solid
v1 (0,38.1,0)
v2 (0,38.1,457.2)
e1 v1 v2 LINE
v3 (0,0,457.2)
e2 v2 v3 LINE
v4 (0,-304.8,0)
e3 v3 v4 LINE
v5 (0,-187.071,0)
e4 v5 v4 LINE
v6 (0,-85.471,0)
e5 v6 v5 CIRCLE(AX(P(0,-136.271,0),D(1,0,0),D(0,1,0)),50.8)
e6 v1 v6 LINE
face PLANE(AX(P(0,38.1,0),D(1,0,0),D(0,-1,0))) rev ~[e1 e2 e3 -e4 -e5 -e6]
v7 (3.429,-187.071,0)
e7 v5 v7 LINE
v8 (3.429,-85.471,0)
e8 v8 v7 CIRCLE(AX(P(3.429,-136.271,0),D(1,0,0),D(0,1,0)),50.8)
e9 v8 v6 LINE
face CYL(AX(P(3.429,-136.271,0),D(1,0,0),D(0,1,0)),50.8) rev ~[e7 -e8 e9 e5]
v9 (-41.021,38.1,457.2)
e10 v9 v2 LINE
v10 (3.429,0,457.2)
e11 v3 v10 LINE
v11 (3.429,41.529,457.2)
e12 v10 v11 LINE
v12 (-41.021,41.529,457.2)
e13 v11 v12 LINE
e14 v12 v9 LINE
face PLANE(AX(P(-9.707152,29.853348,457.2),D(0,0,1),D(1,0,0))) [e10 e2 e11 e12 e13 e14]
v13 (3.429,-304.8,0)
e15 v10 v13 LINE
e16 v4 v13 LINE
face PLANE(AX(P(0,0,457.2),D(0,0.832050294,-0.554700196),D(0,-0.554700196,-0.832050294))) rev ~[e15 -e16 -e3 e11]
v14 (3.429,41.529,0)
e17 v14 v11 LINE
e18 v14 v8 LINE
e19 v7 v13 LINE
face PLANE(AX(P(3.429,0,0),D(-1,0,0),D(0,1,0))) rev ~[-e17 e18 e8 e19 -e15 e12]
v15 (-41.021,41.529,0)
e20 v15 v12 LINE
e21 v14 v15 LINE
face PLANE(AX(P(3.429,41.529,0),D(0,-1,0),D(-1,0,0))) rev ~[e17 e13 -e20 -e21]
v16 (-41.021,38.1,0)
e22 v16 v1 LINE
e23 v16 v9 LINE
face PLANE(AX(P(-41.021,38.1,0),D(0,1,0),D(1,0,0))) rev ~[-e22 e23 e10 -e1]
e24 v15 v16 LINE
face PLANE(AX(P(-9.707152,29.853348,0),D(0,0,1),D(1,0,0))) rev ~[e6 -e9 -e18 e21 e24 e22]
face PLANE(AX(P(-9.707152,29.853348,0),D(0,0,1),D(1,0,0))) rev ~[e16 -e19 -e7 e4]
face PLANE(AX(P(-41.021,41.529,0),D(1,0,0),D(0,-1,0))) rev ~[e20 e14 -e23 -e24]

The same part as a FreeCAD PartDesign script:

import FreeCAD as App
import Part
import Sketcher

V = App.Vector
Q = App.Units.Quantity


def add_polygon(sketch, points):
    """Adds a closed chain of lines whose ends are joined by coincident constraints."""
    first, n = sketch.GeometryCount, len(points)
    for a, b in zip(points, points[1:] + points[:1]):
        sketch.addGeometry(Part.LineSegment(App.Vector(*a, 0), App.Vector(*b, 0)), False)
    for i in range(n):
        sketch.addConstraint(Sketcher.Constraint("Coincident", first + i, 2, first + (i + 1) % n, 1))

doc = App.newDocument("Part")
body = doc.addObject("PartDesign::Body", "Body")

sketch1 = body.newObject("Sketcher::SketchObject", "Sketch")
sketch1.AttachmentSupport = (doc.getObject("YZ_Plane"), [""])
sketch1.MapMode = "FlatFace"
add_polygon(sketch1, [(-305, 0), (0, 0), (0, 457)])
sketch1.addConstraint([
    Sketcher.Constraint("Horizontal", 0),
    Sketcher.Constraint("Vertical", 1),
    Sketcher.Constraint("Coincident", 0, 2, -1, 1),
    Sketcher.Constraint("DistanceX", 0, 1, 0, 2, Q("12 in")),
    Sketcher.Constraint("DistanceY", 1, 1, 1, 2, Q("18 in")),
])
pad1 = body.newObject("PartDesign::Pad", "Pad")
pad1.Profile = sketch1
pad1.Length = Q("0.135 in")

sketch2 = body.newObject("Sketcher::SketchObject", "Sketch001")
sketch2.AttachmentSupport = (doc.getObject("XY_Plane"), [""])
sketch2.MapMode = "FlatFace"
add_polygon(sketch2, [(0, 38.1), (0, 0), (3.4, 0), (3.4, 41.5), (-41, 41.5), (-41, 38.1)])
sketch2.addConstraint([
    Sketcher.Constraint("Vertical", 0),
    Sketcher.Constraint("Horizontal", 1),
    Sketcher.Constraint("Vertical", 2),
    Sketcher.Constraint("Horizontal", 3),
    Sketcher.Constraint("Vertical", 4),
    Sketcher.Constraint("Horizontal", 5),
    Sketcher.Constraint("Coincident", 0, 2, -1, 1),
    Sketcher.Constraint("Equal", 1, 4),
    Sketcher.Constraint("DistanceY", 0, 2, 0, 1, Q("1.5 in")),
    Sketcher.Constraint("DistanceX", 3, 2, 3, 1, Q("1.75 in")),
    Sketcher.Constraint("DistanceX", 1, 1, 1, 2, Q("0.135 in")),
])
pad2 = body.newObject("PartDesign::Pad", "Pad001")
pad2.Profile = sketch2
pad2.Length = Q("18 in")

sketch3 = body.newObject("Sketcher::SketchObject", "Sketch002")
sketch3.AttachmentSupport = (doc.getObject("YZ_Plane"), [""])
sketch3.MapMode = "FlatFace"
sketch3.AttachmentOffset = App.Placement(V(0, 0, 0.135 * 25.4), App.Rotation())
sketch3.addGeometry(Part.Circle(V(-136, 0, 0), V(0, 0, 1), 51), False)
sketch3.addConstraint([
    Sketcher.Constraint("PointOnObject", 0, 3, -1),
    Sketcher.Constraint("Diameter", 0, Q("4 in")),
    Sketcher.Constraint("DistanceX", 0, 3, -1, 1, Q("5.365 in")),
])
pocket1 = body.newObject("PartDesign::Pocket", "Pocket")
pocket1.Profile = sketch3
pocket1.Length = Q("1 in")

doc.recompute()
